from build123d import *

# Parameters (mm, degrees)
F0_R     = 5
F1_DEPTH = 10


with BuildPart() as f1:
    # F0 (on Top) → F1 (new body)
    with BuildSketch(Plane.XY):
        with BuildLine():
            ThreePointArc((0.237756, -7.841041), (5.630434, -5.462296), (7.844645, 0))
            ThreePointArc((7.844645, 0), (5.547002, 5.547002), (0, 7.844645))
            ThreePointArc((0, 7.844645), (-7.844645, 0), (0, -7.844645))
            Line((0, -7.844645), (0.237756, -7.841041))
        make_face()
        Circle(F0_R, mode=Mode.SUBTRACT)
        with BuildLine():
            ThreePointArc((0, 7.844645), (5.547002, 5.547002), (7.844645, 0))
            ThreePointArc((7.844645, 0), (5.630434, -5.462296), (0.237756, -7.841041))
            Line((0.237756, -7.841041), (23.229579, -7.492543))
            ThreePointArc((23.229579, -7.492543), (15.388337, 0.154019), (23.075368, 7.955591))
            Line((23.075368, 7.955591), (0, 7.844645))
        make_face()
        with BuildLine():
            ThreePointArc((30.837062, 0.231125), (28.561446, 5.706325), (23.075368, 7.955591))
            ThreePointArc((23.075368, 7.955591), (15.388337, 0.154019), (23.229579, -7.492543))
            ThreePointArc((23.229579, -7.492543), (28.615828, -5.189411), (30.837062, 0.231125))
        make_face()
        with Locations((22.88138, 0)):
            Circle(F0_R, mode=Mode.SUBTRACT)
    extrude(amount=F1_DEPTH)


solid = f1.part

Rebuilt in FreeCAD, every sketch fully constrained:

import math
import FreeCAD as App
import Part
import Sketcher

V = App.Vector

doc = App.newDocument("Part")
body = doc.addObject("PartDesign::Body", "Body")

# Sketch on XY plane
sketch1 = body.newObject("Sketcher::SketchObject", "Sketch")
sketch1.AttachmentSupport = (doc.getObject("XY_Plane"), [""])
sketch1.MapMode = "FlatFace"
sketch1.addGeometry(Part.LineSegment(V(0, -7.84, 0), V(0.24, -7.84, 0)), False)
sketch1.addGeometry(Part.LineSegment(V(0.24, -7.84, 0), V(23.23, -7.49, 0)), False)
sketch1.addGeometry(Part.ArcOfCircle(Part.Circle(V(23.11, 0.23, 0), V(0, 0, 1), 7.72), math.radians(-89), math.radians(0)), False)
sketch1.addGeometry(Part.ArcOfCircle(Part.Circle(V(23.11, 0.23, 0), V(0, 0, 1), 7.72), math.radians(0), math.radians(90)), False)
sketch1.addGeometry(Part.LineSegment(V(23.08, 7.96, 0), V(0, 7.84, 0)), False)
sketch1.addGeometry(Part.ArcOfCircle(Part.Circle(V(0, 0, 0), V(0, 0, 1), 7.84), math.radians(90), math.radians(270)), False)
sketch1.addGeometry(Part.Circle(V(0, 0, 0), V(0, 0, 1), 5), False)
sketch1.addGeometry(Part.Circle(V(22.88, 0, 0), V(0, 0, 1), 5), False)
sketch1.addConstraint(Sketcher.Constraint("Coincident", 0, 2, 1, 1))
sketch1.addConstraint(Sketcher.Constraint("Tangent", 1, 2, 2, 1))
sketch1.addConstraint(Sketcher.Constraint("Tangent", 2, 2, 3, 1))
sketch1.addConstraint(Sketcher.Constraint("Tangent", 3, 2, 4, 1))
sketch1.addConstraint(Sketcher.Constraint("Coincident", 4, 2, 5, 1))
sketch1.addConstraint(Sketcher.Constraint("Coincident", 5, 2, 0, 1))
sketch1.addConstraint(Sketcher.Constraint("Coincident", 5, 3, -1, 1))
sketch1.addConstraint(Sketcher.Constraint("Coincident", 6, 3, -1, 1))
sketch1.addConstraint(Sketcher.Constraint("Equal", 2, 3))
sketch1.addConstraint(Sketcher.Constraint("Equal", 6, 7))
sketch1.addConstraint(Sketcher.Constraint("PointOnObject", 7, 3, -1))
sketch1.addConstraint(Sketcher.Constraint("PointOnObject", 4, 2, -2))
sketch1.addConstraint(Sketcher.Constraint("PointOnObject", 5, 2, -2))
sketch1.addConstraint(Sketcher.Constraint("Parallel", 0, 1))
sketch1.addConstraint(Sketcher.Constraint("Horizontal", 3, 3, 2, 2))
sketch1.addConstraint(Sketcher.Constraint("Diameter", 6, 10.0))
sketch1.addConstraint(Sketcher.Constraint("Radius", 2, 7.724555))
sketch1.addConstraint(Sketcher.Constraint("Radius", 5, 7.844645))
sketch1.addConstraint(Sketcher.Constraint("DistanceX", 7, 3, 1, 2, 0.348199))
sketch1.addConstraint(Sketcher.Constraint("DistanceY", 5, 2, 1, 2, 0.352102))
sketch1.addConstraint(Sketcher.Constraint("DistanceX", -1, 1, 7, 3, 22.88138))
sketch1.addConstraint(Sketcher.Constraint("DistanceY", 0, 2, -1, 1, 7.841041))
pad1 = body.newObject("PartDesign::Pad", "Pad")
pad1.Profile = sketch1
pad1.Length = 10

doc.recompute()
